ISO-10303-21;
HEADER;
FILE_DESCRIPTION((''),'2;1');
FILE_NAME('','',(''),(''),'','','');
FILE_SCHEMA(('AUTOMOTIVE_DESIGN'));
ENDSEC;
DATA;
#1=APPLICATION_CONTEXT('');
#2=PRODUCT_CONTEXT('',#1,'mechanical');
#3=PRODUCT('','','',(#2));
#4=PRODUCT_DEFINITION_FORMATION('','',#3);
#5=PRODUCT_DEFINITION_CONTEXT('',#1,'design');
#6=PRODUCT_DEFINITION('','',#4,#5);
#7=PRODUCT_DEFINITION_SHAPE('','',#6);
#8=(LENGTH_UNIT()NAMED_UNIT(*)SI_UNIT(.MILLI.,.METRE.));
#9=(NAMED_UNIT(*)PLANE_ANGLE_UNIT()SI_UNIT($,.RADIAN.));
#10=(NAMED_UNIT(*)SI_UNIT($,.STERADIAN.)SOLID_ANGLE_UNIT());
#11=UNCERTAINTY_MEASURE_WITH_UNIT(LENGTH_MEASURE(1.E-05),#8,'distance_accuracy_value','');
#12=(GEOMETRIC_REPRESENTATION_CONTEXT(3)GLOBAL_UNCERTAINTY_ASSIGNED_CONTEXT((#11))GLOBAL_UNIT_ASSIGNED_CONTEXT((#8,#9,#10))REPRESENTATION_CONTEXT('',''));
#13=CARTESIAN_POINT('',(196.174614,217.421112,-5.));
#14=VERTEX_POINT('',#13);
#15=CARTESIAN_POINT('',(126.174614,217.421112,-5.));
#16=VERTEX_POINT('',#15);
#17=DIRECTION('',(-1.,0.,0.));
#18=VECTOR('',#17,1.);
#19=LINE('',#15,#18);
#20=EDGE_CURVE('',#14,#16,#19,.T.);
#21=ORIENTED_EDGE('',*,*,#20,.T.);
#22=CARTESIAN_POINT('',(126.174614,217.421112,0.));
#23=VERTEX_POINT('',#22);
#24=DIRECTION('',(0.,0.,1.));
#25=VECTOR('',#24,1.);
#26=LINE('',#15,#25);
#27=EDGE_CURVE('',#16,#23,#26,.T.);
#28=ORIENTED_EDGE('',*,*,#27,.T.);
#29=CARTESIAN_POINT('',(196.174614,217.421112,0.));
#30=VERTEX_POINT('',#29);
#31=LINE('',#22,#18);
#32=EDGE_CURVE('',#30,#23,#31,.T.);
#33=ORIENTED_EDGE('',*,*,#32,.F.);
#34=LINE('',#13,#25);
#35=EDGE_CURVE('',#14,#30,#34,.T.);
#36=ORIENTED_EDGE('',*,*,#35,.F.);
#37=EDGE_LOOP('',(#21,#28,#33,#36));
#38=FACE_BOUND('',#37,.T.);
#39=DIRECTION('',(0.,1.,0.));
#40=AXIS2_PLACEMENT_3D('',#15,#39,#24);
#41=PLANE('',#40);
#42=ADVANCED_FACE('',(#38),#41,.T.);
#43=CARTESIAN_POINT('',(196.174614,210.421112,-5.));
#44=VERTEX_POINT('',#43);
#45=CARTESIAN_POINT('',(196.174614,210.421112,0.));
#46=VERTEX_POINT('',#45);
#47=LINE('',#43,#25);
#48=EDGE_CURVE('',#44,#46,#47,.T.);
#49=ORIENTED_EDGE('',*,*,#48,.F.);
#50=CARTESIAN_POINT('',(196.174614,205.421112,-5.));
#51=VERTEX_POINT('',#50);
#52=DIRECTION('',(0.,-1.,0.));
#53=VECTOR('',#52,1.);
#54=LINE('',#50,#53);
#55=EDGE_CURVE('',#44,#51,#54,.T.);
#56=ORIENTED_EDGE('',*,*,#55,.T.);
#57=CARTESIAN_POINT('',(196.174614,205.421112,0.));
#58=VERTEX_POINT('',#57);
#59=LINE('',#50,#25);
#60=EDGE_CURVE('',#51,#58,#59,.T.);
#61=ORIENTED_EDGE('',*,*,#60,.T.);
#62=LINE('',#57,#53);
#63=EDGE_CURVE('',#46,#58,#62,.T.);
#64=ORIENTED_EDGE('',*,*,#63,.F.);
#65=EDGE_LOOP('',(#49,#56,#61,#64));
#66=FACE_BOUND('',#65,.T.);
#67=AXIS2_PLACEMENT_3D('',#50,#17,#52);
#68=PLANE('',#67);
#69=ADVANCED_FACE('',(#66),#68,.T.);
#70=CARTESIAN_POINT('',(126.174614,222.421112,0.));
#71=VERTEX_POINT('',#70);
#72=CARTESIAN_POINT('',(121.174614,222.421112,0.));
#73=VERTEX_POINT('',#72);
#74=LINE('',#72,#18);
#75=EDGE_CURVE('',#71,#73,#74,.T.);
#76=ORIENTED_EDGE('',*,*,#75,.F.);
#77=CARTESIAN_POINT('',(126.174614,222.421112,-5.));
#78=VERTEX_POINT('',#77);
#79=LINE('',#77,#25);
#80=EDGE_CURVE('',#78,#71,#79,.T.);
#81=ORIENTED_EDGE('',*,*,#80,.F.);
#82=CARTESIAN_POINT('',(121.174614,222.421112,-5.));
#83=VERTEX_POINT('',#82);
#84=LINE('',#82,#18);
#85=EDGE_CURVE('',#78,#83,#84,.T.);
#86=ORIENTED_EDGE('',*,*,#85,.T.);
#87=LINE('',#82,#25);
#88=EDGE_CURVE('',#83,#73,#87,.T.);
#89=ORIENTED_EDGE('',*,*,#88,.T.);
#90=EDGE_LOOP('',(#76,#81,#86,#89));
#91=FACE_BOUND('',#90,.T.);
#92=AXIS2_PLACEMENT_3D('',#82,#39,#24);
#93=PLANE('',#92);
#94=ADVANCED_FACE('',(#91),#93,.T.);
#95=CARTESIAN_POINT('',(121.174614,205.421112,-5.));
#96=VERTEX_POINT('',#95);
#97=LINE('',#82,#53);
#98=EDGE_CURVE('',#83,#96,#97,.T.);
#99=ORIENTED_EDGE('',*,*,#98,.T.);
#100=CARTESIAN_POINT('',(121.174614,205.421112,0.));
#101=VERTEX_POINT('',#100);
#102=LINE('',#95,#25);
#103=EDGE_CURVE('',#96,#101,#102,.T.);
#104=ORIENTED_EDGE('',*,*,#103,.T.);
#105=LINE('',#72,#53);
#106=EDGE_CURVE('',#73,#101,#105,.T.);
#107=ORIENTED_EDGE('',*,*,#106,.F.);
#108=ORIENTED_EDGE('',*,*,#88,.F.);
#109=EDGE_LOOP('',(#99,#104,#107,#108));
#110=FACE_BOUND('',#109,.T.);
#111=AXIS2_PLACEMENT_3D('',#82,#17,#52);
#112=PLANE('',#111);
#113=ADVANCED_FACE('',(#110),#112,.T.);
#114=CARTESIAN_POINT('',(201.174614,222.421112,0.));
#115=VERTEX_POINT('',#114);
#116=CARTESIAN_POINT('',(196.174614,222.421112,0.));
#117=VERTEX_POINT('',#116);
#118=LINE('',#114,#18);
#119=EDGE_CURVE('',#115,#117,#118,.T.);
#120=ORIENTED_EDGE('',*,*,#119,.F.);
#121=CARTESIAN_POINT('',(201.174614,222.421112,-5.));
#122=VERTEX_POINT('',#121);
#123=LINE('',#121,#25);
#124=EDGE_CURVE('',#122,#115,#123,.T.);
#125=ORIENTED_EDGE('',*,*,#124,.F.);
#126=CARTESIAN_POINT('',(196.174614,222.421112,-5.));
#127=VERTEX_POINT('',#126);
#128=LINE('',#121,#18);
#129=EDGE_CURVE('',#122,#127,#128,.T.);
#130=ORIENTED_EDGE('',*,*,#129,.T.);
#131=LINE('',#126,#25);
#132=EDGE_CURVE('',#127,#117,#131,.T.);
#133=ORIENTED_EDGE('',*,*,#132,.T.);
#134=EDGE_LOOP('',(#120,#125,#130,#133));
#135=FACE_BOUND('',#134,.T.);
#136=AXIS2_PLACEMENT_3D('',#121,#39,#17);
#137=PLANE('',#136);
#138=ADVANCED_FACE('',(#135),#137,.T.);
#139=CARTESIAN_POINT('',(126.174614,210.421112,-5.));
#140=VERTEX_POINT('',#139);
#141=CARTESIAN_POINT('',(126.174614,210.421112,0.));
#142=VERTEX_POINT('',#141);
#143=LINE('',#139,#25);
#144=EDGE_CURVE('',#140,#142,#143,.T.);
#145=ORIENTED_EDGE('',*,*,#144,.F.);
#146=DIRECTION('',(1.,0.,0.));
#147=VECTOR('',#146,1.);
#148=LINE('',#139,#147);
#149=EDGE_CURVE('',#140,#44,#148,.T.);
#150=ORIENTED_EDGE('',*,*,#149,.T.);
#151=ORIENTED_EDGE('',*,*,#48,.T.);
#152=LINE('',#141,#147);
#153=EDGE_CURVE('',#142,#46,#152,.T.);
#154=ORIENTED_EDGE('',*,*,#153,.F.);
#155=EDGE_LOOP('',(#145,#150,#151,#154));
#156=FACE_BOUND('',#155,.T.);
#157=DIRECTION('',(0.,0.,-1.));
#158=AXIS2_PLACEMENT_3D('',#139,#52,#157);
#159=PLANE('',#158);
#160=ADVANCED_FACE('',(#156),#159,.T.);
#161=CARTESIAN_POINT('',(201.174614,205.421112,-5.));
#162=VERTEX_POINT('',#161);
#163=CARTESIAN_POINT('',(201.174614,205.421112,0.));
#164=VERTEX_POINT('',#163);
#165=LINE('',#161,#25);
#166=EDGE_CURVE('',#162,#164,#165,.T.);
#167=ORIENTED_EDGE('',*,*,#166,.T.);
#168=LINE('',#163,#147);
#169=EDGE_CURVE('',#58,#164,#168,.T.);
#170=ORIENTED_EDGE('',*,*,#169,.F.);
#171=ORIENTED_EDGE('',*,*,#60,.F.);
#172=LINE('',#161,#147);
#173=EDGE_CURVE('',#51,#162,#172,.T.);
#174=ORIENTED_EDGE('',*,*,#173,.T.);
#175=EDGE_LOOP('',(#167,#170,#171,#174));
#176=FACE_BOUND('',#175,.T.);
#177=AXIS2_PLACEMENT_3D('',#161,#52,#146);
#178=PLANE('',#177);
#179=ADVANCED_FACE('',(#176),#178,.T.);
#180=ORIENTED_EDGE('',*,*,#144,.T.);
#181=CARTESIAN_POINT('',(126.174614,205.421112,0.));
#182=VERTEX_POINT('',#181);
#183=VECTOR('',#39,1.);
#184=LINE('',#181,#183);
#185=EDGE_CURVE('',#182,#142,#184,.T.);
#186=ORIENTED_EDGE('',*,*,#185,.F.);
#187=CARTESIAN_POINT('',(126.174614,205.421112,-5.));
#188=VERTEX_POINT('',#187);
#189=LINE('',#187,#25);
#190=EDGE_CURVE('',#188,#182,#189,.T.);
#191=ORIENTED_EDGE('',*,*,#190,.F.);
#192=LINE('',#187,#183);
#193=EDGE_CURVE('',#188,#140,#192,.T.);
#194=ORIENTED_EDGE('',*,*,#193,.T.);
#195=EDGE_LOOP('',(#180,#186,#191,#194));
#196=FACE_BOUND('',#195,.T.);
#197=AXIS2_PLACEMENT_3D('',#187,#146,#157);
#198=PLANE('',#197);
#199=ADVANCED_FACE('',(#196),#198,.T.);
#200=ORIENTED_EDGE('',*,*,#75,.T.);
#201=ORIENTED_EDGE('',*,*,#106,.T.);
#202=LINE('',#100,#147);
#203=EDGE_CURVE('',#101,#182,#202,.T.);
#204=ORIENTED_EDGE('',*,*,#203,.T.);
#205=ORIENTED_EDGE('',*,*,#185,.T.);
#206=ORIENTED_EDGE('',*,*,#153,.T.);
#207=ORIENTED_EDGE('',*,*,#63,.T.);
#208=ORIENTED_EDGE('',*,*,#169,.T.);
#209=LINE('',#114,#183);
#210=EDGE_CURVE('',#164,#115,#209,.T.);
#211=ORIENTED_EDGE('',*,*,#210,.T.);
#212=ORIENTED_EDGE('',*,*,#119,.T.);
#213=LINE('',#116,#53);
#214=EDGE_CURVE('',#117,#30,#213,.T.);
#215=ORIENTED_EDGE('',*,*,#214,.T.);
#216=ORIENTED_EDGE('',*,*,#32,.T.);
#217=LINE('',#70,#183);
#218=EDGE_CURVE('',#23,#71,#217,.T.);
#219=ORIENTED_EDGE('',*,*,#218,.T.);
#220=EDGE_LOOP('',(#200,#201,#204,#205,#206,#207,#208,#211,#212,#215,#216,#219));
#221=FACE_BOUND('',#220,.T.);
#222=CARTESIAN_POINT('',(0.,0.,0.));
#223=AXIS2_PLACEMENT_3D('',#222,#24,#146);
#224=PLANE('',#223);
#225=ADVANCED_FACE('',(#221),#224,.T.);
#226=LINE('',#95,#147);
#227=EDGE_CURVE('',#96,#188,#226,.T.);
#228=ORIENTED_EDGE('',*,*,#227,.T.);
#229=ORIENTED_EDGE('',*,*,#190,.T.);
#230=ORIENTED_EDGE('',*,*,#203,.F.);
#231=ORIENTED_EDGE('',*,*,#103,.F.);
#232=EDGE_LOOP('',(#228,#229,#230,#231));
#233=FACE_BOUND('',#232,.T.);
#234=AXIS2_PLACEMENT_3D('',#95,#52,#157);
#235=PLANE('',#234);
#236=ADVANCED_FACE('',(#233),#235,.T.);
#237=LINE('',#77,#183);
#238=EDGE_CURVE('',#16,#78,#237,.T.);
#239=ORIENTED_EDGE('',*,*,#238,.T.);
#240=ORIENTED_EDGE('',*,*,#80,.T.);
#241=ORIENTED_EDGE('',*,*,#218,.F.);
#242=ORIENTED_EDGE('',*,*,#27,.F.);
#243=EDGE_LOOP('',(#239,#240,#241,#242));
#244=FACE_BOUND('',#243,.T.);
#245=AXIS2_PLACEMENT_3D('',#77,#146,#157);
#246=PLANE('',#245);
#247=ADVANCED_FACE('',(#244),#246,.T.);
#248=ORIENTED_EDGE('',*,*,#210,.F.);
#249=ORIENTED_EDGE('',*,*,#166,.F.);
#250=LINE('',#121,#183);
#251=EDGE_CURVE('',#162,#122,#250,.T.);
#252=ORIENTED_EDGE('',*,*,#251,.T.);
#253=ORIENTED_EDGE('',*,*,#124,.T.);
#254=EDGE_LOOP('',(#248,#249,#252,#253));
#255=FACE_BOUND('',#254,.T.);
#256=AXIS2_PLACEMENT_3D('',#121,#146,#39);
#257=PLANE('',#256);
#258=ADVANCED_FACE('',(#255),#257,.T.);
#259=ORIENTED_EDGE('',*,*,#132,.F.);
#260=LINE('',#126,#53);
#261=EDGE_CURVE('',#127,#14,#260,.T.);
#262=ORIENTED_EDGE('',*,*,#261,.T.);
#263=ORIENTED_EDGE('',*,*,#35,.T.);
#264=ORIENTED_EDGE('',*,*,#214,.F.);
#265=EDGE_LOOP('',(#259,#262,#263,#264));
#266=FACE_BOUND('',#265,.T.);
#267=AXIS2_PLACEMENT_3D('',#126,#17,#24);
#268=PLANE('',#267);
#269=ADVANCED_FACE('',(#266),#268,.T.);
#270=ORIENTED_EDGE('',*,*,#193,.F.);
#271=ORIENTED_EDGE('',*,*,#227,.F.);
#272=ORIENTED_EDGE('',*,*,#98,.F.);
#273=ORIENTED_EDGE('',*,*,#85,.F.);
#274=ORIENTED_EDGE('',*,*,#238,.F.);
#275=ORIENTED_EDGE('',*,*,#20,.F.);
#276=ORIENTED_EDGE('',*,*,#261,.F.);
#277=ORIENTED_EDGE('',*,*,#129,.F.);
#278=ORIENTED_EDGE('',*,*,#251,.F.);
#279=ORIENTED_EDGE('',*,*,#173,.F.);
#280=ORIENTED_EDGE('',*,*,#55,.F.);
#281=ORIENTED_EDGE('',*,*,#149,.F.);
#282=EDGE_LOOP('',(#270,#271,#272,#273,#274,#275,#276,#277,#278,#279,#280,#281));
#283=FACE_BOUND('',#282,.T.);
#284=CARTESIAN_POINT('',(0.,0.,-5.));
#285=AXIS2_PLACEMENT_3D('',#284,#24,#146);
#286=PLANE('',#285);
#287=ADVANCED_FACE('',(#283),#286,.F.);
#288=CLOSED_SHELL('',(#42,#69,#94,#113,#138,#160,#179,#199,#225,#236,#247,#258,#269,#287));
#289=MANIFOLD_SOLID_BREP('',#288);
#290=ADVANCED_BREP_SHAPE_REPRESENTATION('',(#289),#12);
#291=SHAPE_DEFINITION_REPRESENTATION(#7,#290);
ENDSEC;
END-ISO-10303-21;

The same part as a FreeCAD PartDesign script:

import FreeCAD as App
import Part
import Sketcher
from FreeCAD import Vector


def add_polygon(sketch, points):
    """Adds a closed chain of lines whose ends are joined by coincident constraints."""
    first, n = sketch.GeometryCount, len(points)
    for a, b in zip(points, points[1:] + points[:1]):
        sketch.addGeometry(Part.LineSegment(App.Vector(*a, 0), App.Vector(*b, 0)), False)
    for i in range(n):
        sketch.addConstraint(Sketcher.Constraint("Coincident", first + i, 2, first + (i + 1) % n, 1))

doc = App.newDocument("Part")
body = doc.addObject("PartDesign::Body", "Body")

# Sketch on XY plane
sketch1 = doc.addObject("Sketcher::SketchObject", "Sketch")
body.addObject(sketch1)
sketch1.AttachmentSupport = (doc.XY_Plane, [""])
sketch1.MapMode = "FlatFace"
add_polygon(sketch1, [(126, 222), (121, 222), (121, 205), (126, 205), (126, 210), (196, 210), (196, 205), (201, 205), (201, 222), (196, 222), (196, 217), (126, 217)])  # lines 0-11
sketch1.addConstraint([
    Sketcher.Constraint("Horizontal", 0),
    Sketcher.Constraint("Vertical", 1),
    Sketcher.Constraint("Horizontal", 2),
    Sketcher.Constraint("Vertical", 3),
    Sketcher.Constraint("Horizontal", 4),
    Sketcher.Constraint("Vertical", 5),
    Sketcher.Constraint("Horizontal", 6),
    Sketcher.Constraint("Vertical", 7),
    Sketcher.Constraint("Horizontal", 8),
    Sketcher.Constraint("Vertical", 9),
    Sketcher.Constraint("Horizontal", 10),
    Sketcher.Constraint("Vertical", 11),
    Sketcher.Constraint("Horizontal", 2, 2, 5, 2),
    Sketcher.Constraint("Horizontal", 0, 2, 7, 2),
    Sketcher.Constraint("Vertical", 5, 2, 8, 2),
    Sketcher.Constraint("Vertical", 3, 2, 10, 2),
    Sketcher.Constraint("Equal", 2, 6),
    Sketcher.Constraint("Equal", 8, 3),
    Sketcher.Constraint("Equal", 5, 9),
    Sketcher.Constraint("DistanceX", 0, 2, 0, 1, 5.0),
    Sketcher.Constraint("DistanceX", 4, 1, 4, 2, 70.0),
    Sketcher.Constraint("DistanceY", 1, 2, 1, 1, 17.0),
    Sketcher.Constraint("DistanceY", -1, 1, 0, 2, 222.421112),
    Sketcher.Constraint("DistanceX", -1, 1, 0, 2, 121.174614),
])
pad1 = doc.addObject("PartDesign::Pad", "Pad")
body.addObject(pad1)
pad1.Profile = sketch1
pad1.Length = 5
pad1.Reversed = True

doc.recompute()
